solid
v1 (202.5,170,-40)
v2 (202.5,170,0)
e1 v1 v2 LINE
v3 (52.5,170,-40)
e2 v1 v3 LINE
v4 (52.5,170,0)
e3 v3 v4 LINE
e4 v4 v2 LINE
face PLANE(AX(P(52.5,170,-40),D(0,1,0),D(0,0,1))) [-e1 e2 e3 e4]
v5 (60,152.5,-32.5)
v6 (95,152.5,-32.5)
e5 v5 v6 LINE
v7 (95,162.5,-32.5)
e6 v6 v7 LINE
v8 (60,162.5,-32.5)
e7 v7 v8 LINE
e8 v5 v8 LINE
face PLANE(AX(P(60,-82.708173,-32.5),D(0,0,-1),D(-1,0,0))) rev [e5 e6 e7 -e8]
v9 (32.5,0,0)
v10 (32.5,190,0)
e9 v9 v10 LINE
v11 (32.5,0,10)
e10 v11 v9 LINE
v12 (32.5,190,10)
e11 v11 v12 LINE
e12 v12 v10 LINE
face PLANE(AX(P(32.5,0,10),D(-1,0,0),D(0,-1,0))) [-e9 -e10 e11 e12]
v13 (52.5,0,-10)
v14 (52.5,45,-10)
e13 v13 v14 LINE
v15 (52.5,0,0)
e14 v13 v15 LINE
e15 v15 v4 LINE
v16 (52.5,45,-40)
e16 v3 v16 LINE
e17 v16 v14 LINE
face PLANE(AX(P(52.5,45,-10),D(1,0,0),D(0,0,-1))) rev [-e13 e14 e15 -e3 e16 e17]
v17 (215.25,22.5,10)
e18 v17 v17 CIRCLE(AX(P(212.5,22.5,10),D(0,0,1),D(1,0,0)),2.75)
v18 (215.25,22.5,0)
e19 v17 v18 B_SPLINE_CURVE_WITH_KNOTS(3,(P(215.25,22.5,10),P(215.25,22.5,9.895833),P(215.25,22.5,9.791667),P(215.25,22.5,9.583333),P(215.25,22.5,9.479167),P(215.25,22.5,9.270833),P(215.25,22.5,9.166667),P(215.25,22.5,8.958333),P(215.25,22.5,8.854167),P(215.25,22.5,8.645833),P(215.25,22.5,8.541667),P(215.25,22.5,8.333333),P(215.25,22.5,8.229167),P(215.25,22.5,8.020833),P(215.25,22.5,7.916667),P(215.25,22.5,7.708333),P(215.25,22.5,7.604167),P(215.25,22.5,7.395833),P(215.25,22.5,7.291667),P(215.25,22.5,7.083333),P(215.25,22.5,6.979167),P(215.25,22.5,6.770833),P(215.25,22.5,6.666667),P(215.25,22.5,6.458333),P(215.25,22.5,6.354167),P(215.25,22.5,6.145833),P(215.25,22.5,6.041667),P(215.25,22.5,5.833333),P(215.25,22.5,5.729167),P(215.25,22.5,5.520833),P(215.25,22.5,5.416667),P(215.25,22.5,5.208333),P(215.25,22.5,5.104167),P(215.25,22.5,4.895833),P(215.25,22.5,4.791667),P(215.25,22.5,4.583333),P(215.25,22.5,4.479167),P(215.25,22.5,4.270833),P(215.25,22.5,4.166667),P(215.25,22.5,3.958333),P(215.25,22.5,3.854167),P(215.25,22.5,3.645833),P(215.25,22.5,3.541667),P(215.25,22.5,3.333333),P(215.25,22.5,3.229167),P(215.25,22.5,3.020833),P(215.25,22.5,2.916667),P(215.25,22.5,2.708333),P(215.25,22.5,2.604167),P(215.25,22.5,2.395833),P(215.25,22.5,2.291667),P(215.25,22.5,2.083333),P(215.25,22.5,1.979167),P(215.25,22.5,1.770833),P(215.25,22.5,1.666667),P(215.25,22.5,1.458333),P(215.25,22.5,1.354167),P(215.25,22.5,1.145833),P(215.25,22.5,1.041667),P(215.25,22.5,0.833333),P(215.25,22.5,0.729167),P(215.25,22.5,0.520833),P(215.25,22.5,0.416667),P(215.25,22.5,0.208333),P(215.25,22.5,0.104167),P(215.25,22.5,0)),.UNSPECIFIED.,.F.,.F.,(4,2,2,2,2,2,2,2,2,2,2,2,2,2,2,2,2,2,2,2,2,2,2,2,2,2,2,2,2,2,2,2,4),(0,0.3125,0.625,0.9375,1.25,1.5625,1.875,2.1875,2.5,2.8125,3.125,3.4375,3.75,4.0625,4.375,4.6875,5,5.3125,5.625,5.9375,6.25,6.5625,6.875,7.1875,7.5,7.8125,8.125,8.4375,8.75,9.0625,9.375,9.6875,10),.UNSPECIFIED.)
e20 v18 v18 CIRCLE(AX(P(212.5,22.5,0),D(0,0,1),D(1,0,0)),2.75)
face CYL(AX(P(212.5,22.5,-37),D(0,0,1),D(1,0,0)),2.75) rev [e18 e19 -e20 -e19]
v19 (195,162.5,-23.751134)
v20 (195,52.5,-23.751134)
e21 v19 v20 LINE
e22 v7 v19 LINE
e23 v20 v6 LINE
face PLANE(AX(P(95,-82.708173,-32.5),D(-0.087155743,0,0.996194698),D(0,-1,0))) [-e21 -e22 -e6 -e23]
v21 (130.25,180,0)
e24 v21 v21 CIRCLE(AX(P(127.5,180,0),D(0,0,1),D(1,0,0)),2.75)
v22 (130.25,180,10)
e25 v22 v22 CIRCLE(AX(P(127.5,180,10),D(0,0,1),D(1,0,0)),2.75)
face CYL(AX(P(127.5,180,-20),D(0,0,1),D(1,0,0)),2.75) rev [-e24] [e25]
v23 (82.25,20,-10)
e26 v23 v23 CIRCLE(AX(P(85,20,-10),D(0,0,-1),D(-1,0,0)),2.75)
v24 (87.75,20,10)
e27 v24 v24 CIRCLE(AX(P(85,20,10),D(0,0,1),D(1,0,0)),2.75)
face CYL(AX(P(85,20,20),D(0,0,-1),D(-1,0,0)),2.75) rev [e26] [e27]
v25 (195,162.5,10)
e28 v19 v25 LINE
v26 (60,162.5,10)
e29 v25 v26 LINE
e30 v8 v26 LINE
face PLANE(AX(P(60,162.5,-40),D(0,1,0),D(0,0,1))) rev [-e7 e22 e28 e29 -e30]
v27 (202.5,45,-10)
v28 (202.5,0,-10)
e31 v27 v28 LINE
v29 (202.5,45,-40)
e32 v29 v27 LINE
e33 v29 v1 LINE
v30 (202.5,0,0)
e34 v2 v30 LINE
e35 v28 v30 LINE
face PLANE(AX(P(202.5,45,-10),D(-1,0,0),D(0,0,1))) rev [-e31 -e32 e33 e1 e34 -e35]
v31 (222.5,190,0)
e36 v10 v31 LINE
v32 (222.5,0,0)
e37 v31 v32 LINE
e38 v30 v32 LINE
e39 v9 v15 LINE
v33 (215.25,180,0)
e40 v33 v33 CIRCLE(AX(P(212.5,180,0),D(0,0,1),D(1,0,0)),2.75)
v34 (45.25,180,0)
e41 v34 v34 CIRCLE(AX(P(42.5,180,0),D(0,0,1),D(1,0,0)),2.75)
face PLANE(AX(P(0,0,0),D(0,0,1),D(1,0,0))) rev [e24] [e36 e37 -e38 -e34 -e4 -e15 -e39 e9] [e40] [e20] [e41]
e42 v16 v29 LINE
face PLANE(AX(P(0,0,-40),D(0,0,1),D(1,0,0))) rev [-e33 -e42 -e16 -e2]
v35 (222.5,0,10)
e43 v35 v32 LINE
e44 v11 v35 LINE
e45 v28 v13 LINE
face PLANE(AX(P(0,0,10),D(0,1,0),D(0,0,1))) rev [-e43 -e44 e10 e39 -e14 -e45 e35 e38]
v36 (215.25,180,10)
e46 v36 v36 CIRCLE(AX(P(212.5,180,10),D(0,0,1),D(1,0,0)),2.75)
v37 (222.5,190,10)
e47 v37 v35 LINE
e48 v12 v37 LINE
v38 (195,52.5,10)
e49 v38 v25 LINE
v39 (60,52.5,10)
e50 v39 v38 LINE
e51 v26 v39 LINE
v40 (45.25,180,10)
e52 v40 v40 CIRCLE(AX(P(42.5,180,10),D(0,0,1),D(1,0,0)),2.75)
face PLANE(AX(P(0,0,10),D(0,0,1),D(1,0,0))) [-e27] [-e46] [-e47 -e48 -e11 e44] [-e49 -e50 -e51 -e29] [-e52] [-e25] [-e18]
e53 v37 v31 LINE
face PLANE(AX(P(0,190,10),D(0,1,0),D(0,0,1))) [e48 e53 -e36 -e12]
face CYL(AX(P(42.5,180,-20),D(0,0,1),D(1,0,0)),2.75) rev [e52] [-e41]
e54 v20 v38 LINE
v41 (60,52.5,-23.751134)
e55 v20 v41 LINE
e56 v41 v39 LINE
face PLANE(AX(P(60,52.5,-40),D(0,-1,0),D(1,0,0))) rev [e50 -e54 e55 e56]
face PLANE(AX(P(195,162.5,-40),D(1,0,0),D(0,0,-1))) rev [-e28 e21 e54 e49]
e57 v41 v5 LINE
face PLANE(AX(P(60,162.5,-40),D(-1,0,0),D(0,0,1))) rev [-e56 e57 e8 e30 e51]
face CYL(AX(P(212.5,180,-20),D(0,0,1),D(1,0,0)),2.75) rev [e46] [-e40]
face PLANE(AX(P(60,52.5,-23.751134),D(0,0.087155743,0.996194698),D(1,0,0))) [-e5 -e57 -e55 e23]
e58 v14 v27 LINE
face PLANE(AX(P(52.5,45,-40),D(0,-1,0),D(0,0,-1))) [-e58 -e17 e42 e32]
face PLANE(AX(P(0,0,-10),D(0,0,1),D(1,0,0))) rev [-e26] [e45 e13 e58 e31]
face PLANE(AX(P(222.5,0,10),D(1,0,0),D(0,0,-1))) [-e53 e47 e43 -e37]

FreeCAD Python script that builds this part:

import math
import FreeCAD as App
import Part
import Sketcher
from FreeCAD import Vector
Q = App.Units.Quantity


def edges_at(feature, points):
    """Names of the edges that pass closest to the given points."""
    edges = feature.Shape.Edges
    near = lambda p: min(range(len(edges)), key=lambda i: edges[i].distToShape(Part.Vertex(*p))[0])
    return sorted({f"Edge{near(p) + 1}" for p in points})


def add_polygon(sketch, points):
    """Adds a closed chain of lines whose ends are joined by coincident constraints."""
    first, n = sketch.GeometryCount, len(points)
    for a, b in zip(points, points[1:] + points[:1]):
        sketch.addGeometry(Part.LineSegment(App.Vector(*a, 0), App.Vector(*b, 0)), False)
    for i in range(n):
        sketch.addConstraint(Sketcher.Constraint("Coincident", first + i, 2, first + (i + 1) % n, 1))

doc = App.newDocument("Part")
body = doc.addObject("PartDesign::Body", "Body")

sketch1 = body.newObject("Sketcher::SketchObject", "Sketch")
sketch1.AttachmentSupport = (doc.getObject("XY_Plane"), [""])
sketch1.MapMode = "FlatFace"
add_polygon(sketch1, [(222.5, 0), (222.5, 190), (32.5, 190), (32.5, 0)])
add_polygon(sketch1, [(52.5, 170), (202.5, 170), (202.5, 45), (52.5, 45)])
sketch1.addConstraint([
    Sketcher.Constraint("Vertical", 0),
    Sketcher.Constraint("Horizontal", 1),
    Sketcher.Constraint("Vertical", 2),
    Sketcher.Constraint("Horizontal", 3),
    Sketcher.Constraint("Horizontal", 4),
    Sketcher.Constraint("Vertical", 5),
    Sketcher.Constraint("Horizontal", 6),
    Sketcher.Constraint("Vertical", 7),
    Sketcher.Constraint("PointOnObject", 2, 2, -1),
    Sketcher.Constraint("Equal", 3, 0),
    Sketcher.Constraint("DistanceX", 1, 2, 1, 1, Q("190 mm")),
    Sketcher.Constraint("DistanceX", 4, 1, 4, 2, Q("150 mm")),
    Sketcher.Constraint("DistanceY", 5, 2, 5, 1, Q("125 mm")),
    Sketcher.Constraint("DistanceY", -1, 1, 4, 2, Q("170 mm")),
    Sketcher.Constraint("DistanceX", 4, 2, 0, 2, Q("20 mm")),
    Sketcher.Constraint("DistanceX", -1, 1, 0, 2, Q("222.5 mm")),
])
pad1 = body.newObject("PartDesign::Pad", "Pad")
pad1.Profile = sketch1
pad1.Length = 10

sketch2 = body.newObject("Sketcher::SketchObject", "Sketch001")
sketch2.AttachmentSupport = (doc.getObject("XY_Plane"), [""])
sketch2.MapMode = "FlatFace"
add_polygon(sketch2, [(202.5, 45), (202.5, 0), (52.5, 0), (52.5, 45)])
sketch2.addConstraint([
    Sketcher.Constraint("Vertical", 0),
    Sketcher.Constraint("Horizontal", 1),
    Sketcher.Constraint("Vertical", 2),
    Sketcher.Constraint("Horizontal", 3),
    Sketcher.Constraint("PointOnObject", 0, 2, -1),
    Sketcher.Constraint("DistanceX", 1, 2, 1, 1, Q("150 mm")),
    Sketcher.Constraint("DistanceY", 0, 2, 0, 1, Q("45 mm")),
    Sketcher.Constraint("DistanceX", -1, 1, 0, 2, Q("202.5 mm")),
])
pad2 = body.newObject("PartDesign::Pad", "Pad001")
pad2.Profile = sketch2
pad2.Length = 10
pad2.Reversed = True

sketch3 = body.newObject("Sketcher::SketchObject", "Sketch002")
sketch3.AttachmentSupport = (doc.getObject("XY_Plane"), [""])
sketch3.MapMode = "FlatFace"
sketch3.AttachmentOffset = App.Placement(Vector(0, 0, -10), App.Rotation())
sketch3.addGeometry(Part.Circle(Vector(85, 20, 0), Vector(0, 0, 1), 2.75), False)
sketch3.addConstraint([
    Sketcher.Constraint("Diameter", 0, Q("5.5 mm")),
    Sketcher.Constraint("DistanceX", -1, 1, 0, 3, Q("85 mm")),
    Sketcher.Constraint("DistanceY", -1, 1, 0, 3, Q("20 mm")),
])
pocket1 = body.newObject("PartDesign::Pocket", "Pocket")
pocket1.Profile = sketch3
pocket1.Length = 30
pocket1.Reversed = True

sketch4 = body.newObject("Sketcher::SketchObject", "Sketch003")
sketch4.AttachmentSupport = (doc.getObject("XY_Plane"), [""])
sketch4.MapMode = "FlatFace"
sketch4.AttachmentOffset = App.Placement(Vector(0, 0, 10), App.Rotation())
sketch4.addGeometry([
    Part.ArcOfCircle(Part.Circle(Vector(42.5, 180, 0), Vector(0, 0, 1), 2.75), math.radians(135), math.radians(315)),
    Part.ArcOfCircle(Part.Circle(Vector(42.5, 180, 0), Vector(0, 0, 1), 2.75), math.radians(-45), math.radians(0)),
    Part.ArcOfCircle(Part.Circle(Vector(42.5, 180, 0), Vector(0, 0, 1), 2.75), math.radians(0), math.radians(135)),
    Part.ArcOfCircle(Part.Circle(Vector(127.5, 180, 0), Vector(0, 0, 1), 2.75), math.radians(0), math.radians(90)),
    Part.ArcOfCircle(Part.Circle(Vector(127.5, 180, 0), Vector(0, 0, 1), 2.75), math.radians(90), math.radians(270)),
    Part.ArcOfCircle(Part.Circle(Vector(127.5, 180, 0), Vector(0, 0, 1), 2.75), math.radians(-90), math.radians(0)),
    Part.ArcOfCircle(Part.Circle(Vector(212.5, 180, 0), Vector(0, 0, 1), 2.75), math.radians(45), math.radians(225)),
    Part.ArcOfCircle(Part.Circle(Vector(212.5, 180, 0), Vector(0, 0, 1), 2.75), math.radians(-135), math.radians(0)),
    Part.ArcOfCircle(Part.Circle(Vector(212.5, 180, 0), Vector(0, 0, 1), 2.75), math.radians(0), math.radians(45)),
], False)
sketch4.addConstraint([
    Sketcher.Constraint("Tangent", 0, 2, 1, 1),
    Sketcher.Constraint("Tangent", 1, 2, 2, 1),
    Sketcher.Constraint("Tangent", 2, 2, 0, 1),
    Sketcher.Constraint("Tangent", 3, 2, 4, 1),
    Sketcher.Constraint("Tangent", 4, 2, 5, 1),
    Sketcher.Constraint("Tangent", 5, 2, 3, 1),
    Sketcher.Constraint("Tangent", 6, 2, 7, 1),
    Sketcher.Constraint("Tangent", 7, 2, 8, 1),
    Sketcher.Constraint("Tangent", 8, 2, 6, 1),
    Sketcher.Constraint("Equal", 2, 3),
    Sketcher.Constraint("Equal", 5, 6),
    Sketcher.Constraint("Horizontal", 2, 3, 3, 3),
    Sketcher.Constraint("Horizontal", 5, 3, 6, 3),
    Sketcher.Constraint("Horizontal", 8, 3, 1, 2),
    Sketcher.Constraint("Horizontal", 1, 2, 5, 2),
    Sketcher.Constraint("Horizontal", 0, 2, 6, 2),
    Sketcher.Constraint("Horizontal", 5, 2, 7, 2),
    Sketcher.Constraint("Horizontal", 2, 2, 8, 2),
    Sketcher.Constraint("Vertical", 5, 3, 3, 2),
    Sketcher.Constraint("Vertical", 3, 2, 4, 2),
    Sketcher.Constraint("Radius", 0, Q("2.75 mm")),
    Sketcher.Constraint("DistanceY", -1, 1, 0, 3, Q("180 mm")),
    Sketcher.Constraint("DistanceX", 0, 3, 3, 3, Q("85 mm")),
    Sketcher.Constraint("DistanceX", 4, 3, 6, 3, Q("85 mm")),
    Sketcher.Constraint("DistanceX", -1, 1, 0, 3, Q("42.5 mm")),
    Sketcher.Constraint("DistanceX", -1, 1, 0, 2, Q("44.444544 mm")),
    Sketcher.Constraint("DistanceX", -1, 1, 2, 2, Q("40.555456 mm")),
])
pocket2 = body.newObject("PartDesign::Pocket", "Pocket001")
pocket2.Profile = sketch4
pocket2.Length = 30

sketch5 = body.newObject("Sketcher::SketchObject", "Sketch004")
sketch5.AttachmentSupport = (doc.getObject("XY_Plane"), [""])
sketch5.MapMode = "FlatFace"
sketch5.AttachmentOffset = App.Placement(Vector(0, 0, 10), App.Rotation())
sketch5.addGeometry(Part.Circle(Vector(212.5, 22.5, 0), Vector(0, 0, 1), 2.75), False)
sketch5.addConstraint([
    Sketcher.Constraint("Diameter", 0, Q("5.5 mm")),
    Sketcher.Constraint("DistanceX", -1, 1, 0, 3, Q("212.5 mm")),
    Sketcher.Constraint("DistanceY", -1, 1, 0, 3, Q("22.5 mm")),
])
pocket3 = body.newObject("PartDesign::Pocket", "Pocket002")
pocket3.Profile = sketch5
pocket3.Length = 47

sketch6 = body.newObject("Sketcher::SketchObject", "Sketch005")
sketch6.AttachmentSupport = (doc.getObject("XY_Plane"), [""])
sketch6.MapMode = "FlatFace"
sketch6.AttachmentOffset = App.Placement(Vector(0, 0, 10), App.Rotation())
add_polygon(sketch6, [(52.5, 170), (52.5, 45), (202.5, 45), (202.5, 170)])
add_polygon(sketch6, [(195, 52.5), (60, 52.5), (60, 162.5), (195, 162.5)])
sketch6.addConstraint([
    Sketcher.Constraint("Vertical", 0),
    Sketcher.Constraint("Horizontal", 1),
    Sketcher.Constraint("Vertical", 2),
    Sketcher.Constraint("Horizontal", 3),
    Sketcher.Constraint("Horizontal", 4),
    Sketcher.Constraint("Vertical", 5),
    Sketcher.Constraint("Horizontal", 6),
    Sketcher.Constraint("Vertical", 7),
    Sketcher.Constraint("DistanceX", 1, 1, 1, 2, Q("150 mm")),
    Sketcher.Constraint("DistanceX", 4, 2, 4, 1, Q("135 mm")),
    Sketcher.Constraint("DistanceY", 0, 2, 0, 1, Q("125 mm")),
    Sketcher.Constraint("DistanceY", 5, 1, 5, 2, Q("110 mm")),
    Sketcher.Constraint("DistanceY", -1, 1, 0, 2, Q("45 mm")),
    Sketcher.Constraint("DistanceX", -1, 1, 4, 2, Q("60 mm")),
    Sketcher.Constraint("DistanceX", -1, 1, 0, 2, Q("52.5 mm")),
    Sketcher.Constraint("DistanceY", -1, 1, 4, 2, Q("52.5 mm")),
])
pad3 = body.newObject("PartDesign::Pad", "Pad002")
pad3.Profile = sketch6
pad3.Length = 50
pad3.Reversed = True

sketch7 = body.newObject("Sketcher::SketchObject", "Sketch006")
sketch7.AttachmentSupport = (doc.getObject("XZ_Plane"), [""])
sketch7.MapMode = "FlatFace"
sketch7.AttachmentOffset = App.Placement(Vector(0, 0, -162.5), App.Rotation())
add_polygon(sketch7, [(60, -32.5), (60, -40), (195, -40), (195, -32.5)])
sketch7.addConstraint([
    Sketcher.Constraint("Vertical", 0),
    Sketcher.Constraint("Horizontal", 1),
    Sketcher.Constraint("Vertical", 2),
    Sketcher.Constraint("Horizontal", 3),
    Sketcher.Constraint("DistanceX", 1, 1, 1, 2, Q("135 mm")),
    Sketcher.Constraint("DistanceY", 0, 2, 0, 1, Q("7.5 mm")),
    Sketcher.Constraint("DistanceX", -1, 1, 0, 2, Q("60 mm")),
    Sketcher.Constraint("DistanceY", 0, 2, -1, 1, Q("40 mm")),
])
pad4 = body.newObject("PartDesign::Pad", "Pad003")
pad4.Profile = sketch7
pad4.Length = 110
doc.recompute()

chamfer = body.newObject("PartDesign::Chamfer", "Chamfer")
chamfer.Base = (pad4, edges_at(pad4, [(195, 107.5, -32.5), (127.5, 52.5, -32.5)]))
chamfer.ChamferType = "Two distances"
chamfer.Size = 100
chamfer.Size2 = 8.748866
chamfer.FlipDirection = True

doc.recompute()
